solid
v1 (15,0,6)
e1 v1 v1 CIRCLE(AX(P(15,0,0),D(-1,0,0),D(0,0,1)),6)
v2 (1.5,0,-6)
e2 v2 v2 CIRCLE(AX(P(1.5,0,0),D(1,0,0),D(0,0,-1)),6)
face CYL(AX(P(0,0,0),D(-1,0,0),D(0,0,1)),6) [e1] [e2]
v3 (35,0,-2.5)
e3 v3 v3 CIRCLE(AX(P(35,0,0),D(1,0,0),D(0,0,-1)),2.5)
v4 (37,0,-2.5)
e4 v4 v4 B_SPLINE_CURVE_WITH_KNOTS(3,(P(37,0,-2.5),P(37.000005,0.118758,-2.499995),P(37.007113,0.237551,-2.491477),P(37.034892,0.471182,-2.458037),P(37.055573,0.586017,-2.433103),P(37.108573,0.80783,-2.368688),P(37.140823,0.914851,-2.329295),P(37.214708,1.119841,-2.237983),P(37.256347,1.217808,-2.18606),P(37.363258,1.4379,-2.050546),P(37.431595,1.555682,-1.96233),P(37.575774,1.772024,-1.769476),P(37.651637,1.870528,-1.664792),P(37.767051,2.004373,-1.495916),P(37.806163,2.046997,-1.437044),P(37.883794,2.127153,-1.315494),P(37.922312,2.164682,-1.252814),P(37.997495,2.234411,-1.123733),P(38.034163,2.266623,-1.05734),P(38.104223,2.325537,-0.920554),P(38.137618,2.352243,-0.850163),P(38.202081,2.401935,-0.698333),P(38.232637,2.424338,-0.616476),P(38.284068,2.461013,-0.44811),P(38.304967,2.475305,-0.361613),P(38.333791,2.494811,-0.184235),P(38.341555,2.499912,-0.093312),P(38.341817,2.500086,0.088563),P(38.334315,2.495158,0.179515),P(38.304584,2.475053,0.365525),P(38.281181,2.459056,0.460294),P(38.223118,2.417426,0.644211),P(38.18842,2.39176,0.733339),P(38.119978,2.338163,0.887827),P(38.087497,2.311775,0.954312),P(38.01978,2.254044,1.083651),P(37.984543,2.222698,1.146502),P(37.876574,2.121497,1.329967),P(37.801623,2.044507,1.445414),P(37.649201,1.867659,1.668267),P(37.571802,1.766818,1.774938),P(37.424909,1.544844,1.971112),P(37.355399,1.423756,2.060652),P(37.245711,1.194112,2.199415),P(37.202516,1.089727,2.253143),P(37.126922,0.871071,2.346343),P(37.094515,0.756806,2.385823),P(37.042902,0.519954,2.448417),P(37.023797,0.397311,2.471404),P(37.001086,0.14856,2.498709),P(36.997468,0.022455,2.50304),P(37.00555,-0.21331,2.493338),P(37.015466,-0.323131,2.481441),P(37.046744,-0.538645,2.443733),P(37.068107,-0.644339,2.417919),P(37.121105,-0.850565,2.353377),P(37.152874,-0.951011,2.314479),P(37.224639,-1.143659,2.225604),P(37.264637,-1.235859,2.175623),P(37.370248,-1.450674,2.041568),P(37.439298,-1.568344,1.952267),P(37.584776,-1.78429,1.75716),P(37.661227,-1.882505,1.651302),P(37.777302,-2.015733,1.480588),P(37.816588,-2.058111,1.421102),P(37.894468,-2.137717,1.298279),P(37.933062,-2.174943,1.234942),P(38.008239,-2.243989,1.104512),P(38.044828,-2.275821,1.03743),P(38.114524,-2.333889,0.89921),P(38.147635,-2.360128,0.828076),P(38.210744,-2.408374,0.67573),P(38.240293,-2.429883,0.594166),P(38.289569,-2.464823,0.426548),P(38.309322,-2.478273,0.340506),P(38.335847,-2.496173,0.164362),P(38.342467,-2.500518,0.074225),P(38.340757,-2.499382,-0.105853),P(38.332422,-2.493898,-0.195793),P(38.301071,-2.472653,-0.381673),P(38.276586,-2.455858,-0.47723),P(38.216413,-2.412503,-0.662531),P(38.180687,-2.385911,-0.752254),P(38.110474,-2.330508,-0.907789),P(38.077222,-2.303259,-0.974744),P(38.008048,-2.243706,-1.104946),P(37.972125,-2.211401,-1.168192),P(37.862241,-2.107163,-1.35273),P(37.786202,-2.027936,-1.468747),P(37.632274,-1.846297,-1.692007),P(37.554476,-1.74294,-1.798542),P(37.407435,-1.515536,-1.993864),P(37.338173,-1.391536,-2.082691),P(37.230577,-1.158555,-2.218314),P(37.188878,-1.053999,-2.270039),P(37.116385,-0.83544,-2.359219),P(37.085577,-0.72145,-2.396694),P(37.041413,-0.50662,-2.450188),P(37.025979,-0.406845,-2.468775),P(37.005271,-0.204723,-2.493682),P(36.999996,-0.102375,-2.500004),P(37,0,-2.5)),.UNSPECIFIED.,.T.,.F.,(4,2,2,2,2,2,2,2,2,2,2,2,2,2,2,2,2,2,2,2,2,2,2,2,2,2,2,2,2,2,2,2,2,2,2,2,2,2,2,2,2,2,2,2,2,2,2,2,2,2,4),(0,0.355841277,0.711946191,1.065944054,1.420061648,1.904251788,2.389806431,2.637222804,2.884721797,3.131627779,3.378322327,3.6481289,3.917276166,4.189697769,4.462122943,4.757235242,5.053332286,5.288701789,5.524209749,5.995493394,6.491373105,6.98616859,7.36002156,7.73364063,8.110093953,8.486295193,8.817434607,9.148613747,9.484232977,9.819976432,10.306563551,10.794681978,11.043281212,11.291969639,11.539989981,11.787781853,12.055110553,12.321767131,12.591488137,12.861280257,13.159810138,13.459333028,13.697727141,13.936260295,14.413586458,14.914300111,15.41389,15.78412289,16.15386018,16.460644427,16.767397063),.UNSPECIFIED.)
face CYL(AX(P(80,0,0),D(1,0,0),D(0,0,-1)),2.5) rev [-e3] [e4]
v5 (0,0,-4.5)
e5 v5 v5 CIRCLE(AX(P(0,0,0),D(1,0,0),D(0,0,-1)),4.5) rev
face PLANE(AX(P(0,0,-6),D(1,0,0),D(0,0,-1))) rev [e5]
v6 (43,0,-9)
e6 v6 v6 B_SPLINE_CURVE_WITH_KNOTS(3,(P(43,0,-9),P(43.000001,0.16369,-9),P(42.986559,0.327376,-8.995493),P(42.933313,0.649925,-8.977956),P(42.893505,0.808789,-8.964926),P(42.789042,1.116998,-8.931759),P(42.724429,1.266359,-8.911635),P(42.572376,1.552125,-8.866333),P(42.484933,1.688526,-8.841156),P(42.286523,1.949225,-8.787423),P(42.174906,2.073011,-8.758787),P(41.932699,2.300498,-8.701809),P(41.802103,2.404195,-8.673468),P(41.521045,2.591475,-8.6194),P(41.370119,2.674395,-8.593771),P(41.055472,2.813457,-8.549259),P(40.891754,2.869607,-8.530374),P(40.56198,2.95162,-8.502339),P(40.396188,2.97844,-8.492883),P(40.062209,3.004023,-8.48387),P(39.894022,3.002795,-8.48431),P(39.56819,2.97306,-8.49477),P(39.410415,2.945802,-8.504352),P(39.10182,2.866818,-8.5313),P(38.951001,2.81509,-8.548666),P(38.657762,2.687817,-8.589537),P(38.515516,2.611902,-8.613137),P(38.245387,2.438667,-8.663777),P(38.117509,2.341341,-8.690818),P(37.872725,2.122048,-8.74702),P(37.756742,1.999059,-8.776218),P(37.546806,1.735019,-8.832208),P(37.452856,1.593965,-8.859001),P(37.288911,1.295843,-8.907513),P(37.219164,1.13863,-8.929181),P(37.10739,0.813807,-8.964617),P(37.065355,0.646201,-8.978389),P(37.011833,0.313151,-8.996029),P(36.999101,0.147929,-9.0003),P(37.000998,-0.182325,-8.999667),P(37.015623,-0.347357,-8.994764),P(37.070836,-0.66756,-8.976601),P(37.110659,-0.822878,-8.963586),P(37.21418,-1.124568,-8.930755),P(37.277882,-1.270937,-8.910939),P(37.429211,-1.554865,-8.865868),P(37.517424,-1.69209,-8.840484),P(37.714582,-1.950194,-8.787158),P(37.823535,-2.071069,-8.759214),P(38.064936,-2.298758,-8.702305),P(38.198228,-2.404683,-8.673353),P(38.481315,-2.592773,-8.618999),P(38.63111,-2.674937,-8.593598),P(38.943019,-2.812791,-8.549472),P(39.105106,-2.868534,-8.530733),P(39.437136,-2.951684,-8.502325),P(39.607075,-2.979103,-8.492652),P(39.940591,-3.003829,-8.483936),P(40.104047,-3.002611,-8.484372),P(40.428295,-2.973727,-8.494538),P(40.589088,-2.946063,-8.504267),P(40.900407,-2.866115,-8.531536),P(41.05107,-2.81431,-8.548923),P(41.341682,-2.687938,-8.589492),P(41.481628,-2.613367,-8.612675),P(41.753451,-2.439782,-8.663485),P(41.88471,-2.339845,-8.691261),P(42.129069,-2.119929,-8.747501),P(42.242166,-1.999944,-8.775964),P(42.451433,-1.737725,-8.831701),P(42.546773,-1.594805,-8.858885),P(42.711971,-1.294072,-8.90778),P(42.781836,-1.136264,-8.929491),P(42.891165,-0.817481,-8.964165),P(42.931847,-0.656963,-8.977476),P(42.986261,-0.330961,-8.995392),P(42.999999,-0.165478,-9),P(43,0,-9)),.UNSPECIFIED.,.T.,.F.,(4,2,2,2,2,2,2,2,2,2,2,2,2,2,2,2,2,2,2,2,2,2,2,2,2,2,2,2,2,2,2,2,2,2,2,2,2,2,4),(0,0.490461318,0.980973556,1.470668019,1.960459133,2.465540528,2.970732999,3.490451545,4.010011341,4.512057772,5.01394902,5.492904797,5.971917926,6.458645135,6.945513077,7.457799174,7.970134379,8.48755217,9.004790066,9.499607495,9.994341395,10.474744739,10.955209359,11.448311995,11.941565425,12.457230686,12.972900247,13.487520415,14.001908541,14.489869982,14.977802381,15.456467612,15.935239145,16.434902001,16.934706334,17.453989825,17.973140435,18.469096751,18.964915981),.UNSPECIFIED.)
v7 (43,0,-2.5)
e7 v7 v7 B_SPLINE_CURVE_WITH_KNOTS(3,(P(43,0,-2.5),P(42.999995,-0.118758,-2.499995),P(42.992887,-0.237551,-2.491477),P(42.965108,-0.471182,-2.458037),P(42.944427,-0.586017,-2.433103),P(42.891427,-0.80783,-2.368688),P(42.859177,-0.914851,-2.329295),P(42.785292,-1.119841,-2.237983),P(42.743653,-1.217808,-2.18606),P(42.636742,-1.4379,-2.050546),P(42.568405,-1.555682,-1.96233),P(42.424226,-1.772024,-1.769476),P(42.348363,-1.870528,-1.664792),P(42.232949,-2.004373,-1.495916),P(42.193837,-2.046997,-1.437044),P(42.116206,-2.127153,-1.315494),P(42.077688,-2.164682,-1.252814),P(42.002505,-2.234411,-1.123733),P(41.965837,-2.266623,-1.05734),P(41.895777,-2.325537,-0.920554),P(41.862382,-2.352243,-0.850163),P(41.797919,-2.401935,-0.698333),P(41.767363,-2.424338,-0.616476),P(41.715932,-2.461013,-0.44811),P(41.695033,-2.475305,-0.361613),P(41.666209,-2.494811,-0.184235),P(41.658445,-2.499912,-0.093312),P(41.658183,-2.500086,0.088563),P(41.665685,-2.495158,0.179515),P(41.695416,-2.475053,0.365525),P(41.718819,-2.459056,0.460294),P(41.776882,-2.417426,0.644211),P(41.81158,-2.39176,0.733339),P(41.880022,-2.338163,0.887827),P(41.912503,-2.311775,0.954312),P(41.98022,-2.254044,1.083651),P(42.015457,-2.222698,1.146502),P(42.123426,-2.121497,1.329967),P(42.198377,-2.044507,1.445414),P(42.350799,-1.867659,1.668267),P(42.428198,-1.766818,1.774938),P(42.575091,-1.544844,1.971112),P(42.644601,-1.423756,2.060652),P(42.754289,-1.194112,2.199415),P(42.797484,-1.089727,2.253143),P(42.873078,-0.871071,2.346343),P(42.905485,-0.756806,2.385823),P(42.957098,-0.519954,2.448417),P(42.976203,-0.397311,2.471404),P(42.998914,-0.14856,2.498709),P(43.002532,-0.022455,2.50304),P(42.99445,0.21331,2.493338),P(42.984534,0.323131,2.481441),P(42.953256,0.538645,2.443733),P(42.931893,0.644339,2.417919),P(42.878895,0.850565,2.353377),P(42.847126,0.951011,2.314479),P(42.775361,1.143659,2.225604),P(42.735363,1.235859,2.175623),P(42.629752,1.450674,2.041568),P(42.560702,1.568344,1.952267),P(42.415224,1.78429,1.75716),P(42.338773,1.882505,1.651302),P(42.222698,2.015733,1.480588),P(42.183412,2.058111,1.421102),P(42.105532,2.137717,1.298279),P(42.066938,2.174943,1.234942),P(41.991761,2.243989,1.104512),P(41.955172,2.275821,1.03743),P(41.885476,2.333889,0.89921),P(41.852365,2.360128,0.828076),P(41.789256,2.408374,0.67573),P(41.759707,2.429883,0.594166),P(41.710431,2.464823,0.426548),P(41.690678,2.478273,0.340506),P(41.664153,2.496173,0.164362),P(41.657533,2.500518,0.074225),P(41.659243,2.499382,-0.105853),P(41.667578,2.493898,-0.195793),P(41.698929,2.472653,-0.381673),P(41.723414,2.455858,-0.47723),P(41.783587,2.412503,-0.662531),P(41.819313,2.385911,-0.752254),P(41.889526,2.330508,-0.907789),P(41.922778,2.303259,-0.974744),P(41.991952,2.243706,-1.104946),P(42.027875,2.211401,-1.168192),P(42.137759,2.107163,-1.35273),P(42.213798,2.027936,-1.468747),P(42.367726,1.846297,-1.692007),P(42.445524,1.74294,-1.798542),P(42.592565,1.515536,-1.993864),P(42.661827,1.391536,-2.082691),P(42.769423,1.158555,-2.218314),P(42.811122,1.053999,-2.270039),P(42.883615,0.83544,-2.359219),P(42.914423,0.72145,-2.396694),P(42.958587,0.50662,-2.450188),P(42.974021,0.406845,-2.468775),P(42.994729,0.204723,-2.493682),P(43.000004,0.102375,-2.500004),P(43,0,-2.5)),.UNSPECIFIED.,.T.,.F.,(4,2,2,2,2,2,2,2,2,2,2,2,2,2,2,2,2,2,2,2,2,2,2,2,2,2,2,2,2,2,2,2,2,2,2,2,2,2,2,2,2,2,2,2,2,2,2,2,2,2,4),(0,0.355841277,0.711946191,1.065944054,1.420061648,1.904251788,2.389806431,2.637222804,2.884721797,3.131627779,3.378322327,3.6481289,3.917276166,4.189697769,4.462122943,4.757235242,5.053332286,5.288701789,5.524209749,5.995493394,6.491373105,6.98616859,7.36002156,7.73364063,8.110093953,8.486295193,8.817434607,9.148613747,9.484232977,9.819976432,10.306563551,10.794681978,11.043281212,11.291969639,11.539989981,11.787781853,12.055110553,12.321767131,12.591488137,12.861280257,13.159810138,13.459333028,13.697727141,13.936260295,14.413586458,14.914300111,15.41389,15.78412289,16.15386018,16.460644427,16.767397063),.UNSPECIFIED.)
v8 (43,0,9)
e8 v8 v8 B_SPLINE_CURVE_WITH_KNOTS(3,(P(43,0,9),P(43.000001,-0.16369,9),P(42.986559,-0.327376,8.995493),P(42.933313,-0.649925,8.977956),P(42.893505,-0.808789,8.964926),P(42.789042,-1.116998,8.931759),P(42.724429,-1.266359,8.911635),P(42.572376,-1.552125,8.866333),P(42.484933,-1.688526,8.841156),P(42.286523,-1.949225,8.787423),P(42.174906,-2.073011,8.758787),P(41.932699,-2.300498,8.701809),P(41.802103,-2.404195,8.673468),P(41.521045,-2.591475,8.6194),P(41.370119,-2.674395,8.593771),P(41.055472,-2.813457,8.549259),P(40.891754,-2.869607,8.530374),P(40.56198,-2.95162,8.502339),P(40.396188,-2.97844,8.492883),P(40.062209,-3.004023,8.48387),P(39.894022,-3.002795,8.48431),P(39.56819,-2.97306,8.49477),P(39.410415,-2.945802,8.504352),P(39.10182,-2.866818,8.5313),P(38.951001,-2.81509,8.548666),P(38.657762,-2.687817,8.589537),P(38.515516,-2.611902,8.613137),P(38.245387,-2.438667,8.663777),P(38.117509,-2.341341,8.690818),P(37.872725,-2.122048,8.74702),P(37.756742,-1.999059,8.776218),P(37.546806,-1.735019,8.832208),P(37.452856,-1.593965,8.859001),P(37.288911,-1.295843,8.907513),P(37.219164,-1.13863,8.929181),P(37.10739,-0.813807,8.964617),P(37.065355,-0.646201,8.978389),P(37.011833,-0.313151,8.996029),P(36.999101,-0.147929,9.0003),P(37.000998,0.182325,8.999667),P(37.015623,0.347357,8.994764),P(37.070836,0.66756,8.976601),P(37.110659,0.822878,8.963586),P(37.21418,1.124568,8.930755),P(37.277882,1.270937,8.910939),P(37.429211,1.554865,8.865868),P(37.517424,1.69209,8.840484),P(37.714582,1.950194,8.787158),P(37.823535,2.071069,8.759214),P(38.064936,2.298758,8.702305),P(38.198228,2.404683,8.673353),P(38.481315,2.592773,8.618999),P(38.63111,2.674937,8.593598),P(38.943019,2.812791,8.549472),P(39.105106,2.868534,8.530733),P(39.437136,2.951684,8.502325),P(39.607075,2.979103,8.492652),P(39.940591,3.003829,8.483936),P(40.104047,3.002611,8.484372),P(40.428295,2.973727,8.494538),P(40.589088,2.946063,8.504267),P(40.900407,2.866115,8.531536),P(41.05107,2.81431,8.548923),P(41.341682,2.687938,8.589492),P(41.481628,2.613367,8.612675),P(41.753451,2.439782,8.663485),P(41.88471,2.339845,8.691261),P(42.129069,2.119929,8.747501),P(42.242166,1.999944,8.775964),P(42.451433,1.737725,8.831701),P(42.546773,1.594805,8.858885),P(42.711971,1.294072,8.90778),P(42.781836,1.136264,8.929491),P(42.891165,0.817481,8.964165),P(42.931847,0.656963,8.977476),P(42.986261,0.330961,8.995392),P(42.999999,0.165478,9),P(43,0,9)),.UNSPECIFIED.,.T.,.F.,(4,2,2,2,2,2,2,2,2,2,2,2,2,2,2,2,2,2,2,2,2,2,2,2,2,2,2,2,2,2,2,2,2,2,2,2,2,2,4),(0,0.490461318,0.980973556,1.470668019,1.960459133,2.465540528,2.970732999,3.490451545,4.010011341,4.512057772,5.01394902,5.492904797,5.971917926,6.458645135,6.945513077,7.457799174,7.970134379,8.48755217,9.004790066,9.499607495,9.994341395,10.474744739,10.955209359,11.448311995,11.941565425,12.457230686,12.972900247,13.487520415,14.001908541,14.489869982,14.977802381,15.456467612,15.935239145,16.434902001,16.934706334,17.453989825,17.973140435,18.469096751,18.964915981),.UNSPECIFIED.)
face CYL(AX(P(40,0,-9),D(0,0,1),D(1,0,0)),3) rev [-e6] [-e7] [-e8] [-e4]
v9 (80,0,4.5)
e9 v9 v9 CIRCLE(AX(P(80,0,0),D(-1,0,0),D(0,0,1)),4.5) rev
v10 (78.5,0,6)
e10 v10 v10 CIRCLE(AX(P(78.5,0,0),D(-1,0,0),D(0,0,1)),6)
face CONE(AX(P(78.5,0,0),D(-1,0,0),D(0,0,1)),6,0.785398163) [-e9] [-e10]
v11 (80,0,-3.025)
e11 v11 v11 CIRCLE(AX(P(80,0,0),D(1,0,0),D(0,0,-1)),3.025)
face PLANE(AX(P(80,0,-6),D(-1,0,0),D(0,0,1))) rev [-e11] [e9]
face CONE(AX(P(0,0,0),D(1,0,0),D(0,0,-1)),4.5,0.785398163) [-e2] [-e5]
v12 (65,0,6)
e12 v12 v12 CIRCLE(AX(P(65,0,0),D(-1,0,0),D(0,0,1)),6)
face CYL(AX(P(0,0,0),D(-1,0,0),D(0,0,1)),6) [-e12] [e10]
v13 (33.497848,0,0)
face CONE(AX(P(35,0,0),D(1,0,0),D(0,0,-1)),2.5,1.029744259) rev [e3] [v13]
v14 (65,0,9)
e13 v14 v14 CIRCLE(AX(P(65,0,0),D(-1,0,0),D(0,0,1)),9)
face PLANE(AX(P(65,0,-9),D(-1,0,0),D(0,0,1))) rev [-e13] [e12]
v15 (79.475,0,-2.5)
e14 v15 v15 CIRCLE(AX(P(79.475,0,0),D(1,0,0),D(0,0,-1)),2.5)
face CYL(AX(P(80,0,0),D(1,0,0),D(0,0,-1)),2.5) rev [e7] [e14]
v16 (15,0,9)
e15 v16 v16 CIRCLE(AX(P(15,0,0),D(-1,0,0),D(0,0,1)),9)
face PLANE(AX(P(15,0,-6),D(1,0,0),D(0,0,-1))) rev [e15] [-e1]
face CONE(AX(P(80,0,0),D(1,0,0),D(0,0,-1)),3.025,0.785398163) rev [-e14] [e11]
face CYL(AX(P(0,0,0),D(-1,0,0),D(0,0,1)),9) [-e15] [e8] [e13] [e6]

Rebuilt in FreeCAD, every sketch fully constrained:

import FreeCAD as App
import Part
import Sketcher

V = App.Vector
Q = App.Units.Quantity


def edges_at(feature, points):
    """Names of the edges that pass closest to the given points."""
    edges = feature.Shape.Edges
    near = lambda p: min(range(len(edges)), key=lambda i: edges[i].distToShape(Part.Vertex(*p))[0])
    return sorted({f"Edge{near(p) + 1}" for p in points})


def add_polygon(sketch, points):
    """Adds a closed chain of lines whose ends are joined by coincident constraints."""
    first, n = sketch.GeometryCount, len(points)
    for a, b in zip(points, points[1:] + points[:1]):
        sketch.addGeometry(Part.LineSegment(App.Vector(*a, 0), App.Vector(*b, 0)), False)
    for i in range(n):
        sketch.addConstraint(Sketcher.Constraint("Coincident", first + i, 2, first + (i + 1) % n, 1))

doc = App.newDocument("Part")
params = doc.addObject("Spreadsheet::Sheet", "Params")
for row, (alias, value) in enumerate([
    ("sketch1_width", "15 mm"),
    ("sketch1_width2", "80 mm"),
    ("sketch1_height", "6 mm"),
    ("sketch1_height2", "3 mm"),
    ("revolution_angle", "360 deg"),
    ("sketch2_diameter", "5 mm"),
    ("hole_diameter", "5 mm"),
    ("hole_depth", "45 mm"),
    ("hole_csink_diameter", "6.05 mm"),
    ("sketch3_diameter", "6 mm"),
    ("chamfer_size", "1.5 mm"),
], start=1):
    params.set(f"A{row}", alias)
    params.set(f"B{row}", "=" + value)
    params.setAlias(f"B{row}", alias)

body = doc.addObject("PartDesign::Body", "Body")

# Sketch on XZ plane
sketch1 = body.newObject("Sketcher::SketchObject", "Sketch")
sketch1.AttachmentSupport = (doc.getObject("XZ_Plane"), [""])
sketch1.MapMode = "FlatFace"
add_polygon(sketch1, [(15, -6), (0, -6), (0, 0), (80, 0), (80, -6), (65, -6), (65, -9), (15, -9)])  # lines 0-7
sketch1.addConstraint(Sketcher.Constraint("Horizontal", 0))
sketch1.addConstraint(Sketcher.Constraint("Vertical", 1))
sketch1.addConstraint(Sketcher.Constraint("Horizontal", 2))
sketch1.addConstraint(Sketcher.Constraint("Vertical", 3))
sketch1.addConstraint(Sketcher.Constraint("Horizontal", 4))
sketch1.addConstraint(Sketcher.Constraint("Vertical", 5))
sketch1.addConstraint(Sketcher.Constraint("Horizontal", 6))
sketch1.addConstraint(Sketcher.Constraint("Vertical", 7))
sketch1.addConstraint(Sketcher.Constraint("Coincident", 1, 2, -1, 1))
sketch1.addConstraint(Sketcher.Constraint("Horizontal", 0, 2, 3, 2))
sketch1.addConstraint(Sketcher.Constraint("Equal", 0, 4))
sketch1.addConstraint(Sketcher.Constraint("DistanceX", 0, 2, 0, 1, Q("15 mm")))
sketch1.addConstraint(Sketcher.Constraint("DistanceX", 2, 1, 2, 2, Q("80 mm")))
sketch1.addConstraint(Sketcher.Constraint("DistanceY", 1, 1, 1, 2, Q("6 mm")))
sketch1.addConstraint(Sketcher.Constraint("DistanceY", 5, 2, 5, 1, Q("3 mm")))
sketch1.setExpression("Constraints[19]", "Params.sketch1_width")
sketch1.setExpression("Constraints[20]", "Params.sketch1_width2")
sketch1.setExpression("Constraints[21]", "Params.sketch1_height")
sketch1.setExpression("Constraints[22]", "Params.sketch1_height2")
revolution = body.newObject("PartDesign::Revolution", "Revolution")
revolution.Profile = sketch1
revolution.ReferenceAxis = (sketch1, ["H_Axis"])
revolution.setExpression("Angle", "Params.revolution_angle")

# Sketch on YZ plane
sketch2 = body.newObject("Sketcher::SketchObject", "Sketch001")
sketch2.AttachmentSupport = (doc.getObject("YZ_Plane"), [""])
sketch2.MapMode = "FlatFace"
sketch2.AttachmentOffset = App.Placement(V(0, 0, 80), App.Rotation())
sketch2.addGeometry(Part.Circle(V(0, 0, 0), V(0, 0, 1), 2.5), False)
sketch2.addConstraint(Sketcher.Constraint("Coincident", 0, 3, -1, 1))
sketch2.addConstraint(Sketcher.Constraint("Diameter", 0, Q("5 mm")))
sketch2.setExpression("Constraints[1]", "Params.sketch2_diameter")
doc.recompute()
hole = body.newObject("PartDesign::Hole", "Hole")
hole.Profile = sketch2
hole.ThreadType = "None"
hole.setExpression("Diameter", "Params.hole_diameter")
hole.DepthType = "Dimension"
hole.setExpression("Depth", "Params.hole_depth")
hole.DrillPoint = "Angled"
hole.DrillPointAngle = 118
hole.HoleCutType = "Countersink"
hole.setExpression("HoleCutDiameter", "Params.hole_csink_diameter")
hole.HoleCutCountersinkAngle = 90

# Sketch on XY plane
sketch3 = body.newObject("Sketcher::SketchObject", "Sketch002")
sketch3.AttachmentSupport = (doc.getObject("XY_Plane"), [""])
sketch3.MapMode = "FlatFace"
sketch3.addGeometry(Part.Circle(V(40, 0, 0), V(0, 0, 1), 3), False)
sketch3.addConstraint(Sketcher.Constraint("PointOnObject", 0, 3, -1))
sketch3.addConstraint(Sketcher.Constraint("Diameter", 0, Q("6 mm")))
sketch3.addConstraint(Sketcher.Constraint("DistanceX", -1, 1, 0, 3, Q("40 mm")))
sketch3.setExpression("Constraints[1]", "Params.sketch3_diameter")
pocket1 = body.newObject("PartDesign::Pocket", "Pocket")
pocket1.Profile = sketch3
pocket1.Type = "ThroughAll"
pocket1.Midplane = True
doc.recompute()

chamfer = body.newObject("PartDesign::Chamfer", "Chamfer")
chamfer.Base = (pocket1, edges_at(pocket1, [(0, 0, 6), (80, 0, 6)]))
chamfer.setExpression("Size", "Params.chamfer_size")

doc.recompute()
